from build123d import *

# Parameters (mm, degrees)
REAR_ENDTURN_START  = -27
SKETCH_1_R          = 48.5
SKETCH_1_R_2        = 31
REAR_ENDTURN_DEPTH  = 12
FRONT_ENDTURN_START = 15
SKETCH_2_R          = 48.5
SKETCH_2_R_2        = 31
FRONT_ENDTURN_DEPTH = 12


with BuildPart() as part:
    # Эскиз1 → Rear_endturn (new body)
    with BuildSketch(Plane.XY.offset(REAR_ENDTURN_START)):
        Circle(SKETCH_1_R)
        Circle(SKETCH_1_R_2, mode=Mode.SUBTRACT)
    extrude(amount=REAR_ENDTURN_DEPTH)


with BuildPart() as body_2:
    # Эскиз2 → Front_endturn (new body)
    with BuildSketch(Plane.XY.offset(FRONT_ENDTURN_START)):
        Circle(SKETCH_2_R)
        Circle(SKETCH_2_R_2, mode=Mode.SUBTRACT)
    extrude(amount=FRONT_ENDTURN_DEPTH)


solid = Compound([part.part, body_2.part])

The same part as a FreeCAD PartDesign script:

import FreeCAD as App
import Part
import Sketcher
from FreeCAD import Vector
Q = App.Units.Quantity

doc = App.newDocument("Part")
body = doc.addObject("PartDesign::Body", "Body")

# Sketch on XY plane
sketch1 = doc.addObject("Sketcher::SketchObject", "Sketch")
body.addObject(sketch1)
sketch1.AttachmentSupport = (doc.XY_Plane, [""])
sketch1.MapMode = "FlatFace"
sketch1.AttachmentOffset = App.Placement(Vector(0, 0, -27), App.Rotation())
sketch1.addGeometry([
    Part.Circle(Vector(0, 0, 0), Vector(0, 0, 1), 48),
    Part.Circle(Vector(0, 0, 0), Vector(0, 0, 1), 31),
], False)
sketch1.addConstraint([
    Sketcher.Constraint("Coincident", 0, 3, -1, 1),
    Sketcher.Constraint("Coincident", 1, 3, -1, 1),
    Sketcher.Constraint("Diameter", 0, Q("97 mm")),
    Sketcher.Constraint("Diameter", 1, Q("62 mm")),
])
pad1 = doc.addObject("PartDesign::Pad", "Pad")
body.addObject(pad1)
pad1.Profile = sketch1
pad1.Length = 12
body2 = doc.addObject("PartDesign::Body", "Body001")

# Sketch on XY plane
sketch2 = doc.addObject("Sketcher::SketchObject", "Sketch001")
body2.addObject(sketch2)
sketch2.AttachmentSupport = (doc.getObject("XY_Plane001"), [""])
sketch2.MapMode = "FlatFace"
sketch2.AttachmentOffset = App.Placement(Vector(0, 0, 15), App.Rotation())
sketch2.addGeometry([
    Part.Circle(Vector(0, 0, 0), Vector(0, 0, 1), 48),
    Part.Circle(Vector(0, 0, 0), Vector(0, 0, 1), 31),
], False)
sketch2.addConstraint([
    Sketcher.Constraint("Coincident", 0, 3, -1, 1),
    Sketcher.Constraint("Coincident", 1, 3, -1, 1),
    Sketcher.Constraint("Diameter", 0, Q("97 mm")),
    Sketcher.Constraint("Diameter", 1, Q("62 mm")),
])
pad2 = doc.addObject("PartDesign::Pad", "Pad001")
body2.addObject(pad2)
pad2.Profile = sketch2
pad2.Length = 12

doc.recompute()
